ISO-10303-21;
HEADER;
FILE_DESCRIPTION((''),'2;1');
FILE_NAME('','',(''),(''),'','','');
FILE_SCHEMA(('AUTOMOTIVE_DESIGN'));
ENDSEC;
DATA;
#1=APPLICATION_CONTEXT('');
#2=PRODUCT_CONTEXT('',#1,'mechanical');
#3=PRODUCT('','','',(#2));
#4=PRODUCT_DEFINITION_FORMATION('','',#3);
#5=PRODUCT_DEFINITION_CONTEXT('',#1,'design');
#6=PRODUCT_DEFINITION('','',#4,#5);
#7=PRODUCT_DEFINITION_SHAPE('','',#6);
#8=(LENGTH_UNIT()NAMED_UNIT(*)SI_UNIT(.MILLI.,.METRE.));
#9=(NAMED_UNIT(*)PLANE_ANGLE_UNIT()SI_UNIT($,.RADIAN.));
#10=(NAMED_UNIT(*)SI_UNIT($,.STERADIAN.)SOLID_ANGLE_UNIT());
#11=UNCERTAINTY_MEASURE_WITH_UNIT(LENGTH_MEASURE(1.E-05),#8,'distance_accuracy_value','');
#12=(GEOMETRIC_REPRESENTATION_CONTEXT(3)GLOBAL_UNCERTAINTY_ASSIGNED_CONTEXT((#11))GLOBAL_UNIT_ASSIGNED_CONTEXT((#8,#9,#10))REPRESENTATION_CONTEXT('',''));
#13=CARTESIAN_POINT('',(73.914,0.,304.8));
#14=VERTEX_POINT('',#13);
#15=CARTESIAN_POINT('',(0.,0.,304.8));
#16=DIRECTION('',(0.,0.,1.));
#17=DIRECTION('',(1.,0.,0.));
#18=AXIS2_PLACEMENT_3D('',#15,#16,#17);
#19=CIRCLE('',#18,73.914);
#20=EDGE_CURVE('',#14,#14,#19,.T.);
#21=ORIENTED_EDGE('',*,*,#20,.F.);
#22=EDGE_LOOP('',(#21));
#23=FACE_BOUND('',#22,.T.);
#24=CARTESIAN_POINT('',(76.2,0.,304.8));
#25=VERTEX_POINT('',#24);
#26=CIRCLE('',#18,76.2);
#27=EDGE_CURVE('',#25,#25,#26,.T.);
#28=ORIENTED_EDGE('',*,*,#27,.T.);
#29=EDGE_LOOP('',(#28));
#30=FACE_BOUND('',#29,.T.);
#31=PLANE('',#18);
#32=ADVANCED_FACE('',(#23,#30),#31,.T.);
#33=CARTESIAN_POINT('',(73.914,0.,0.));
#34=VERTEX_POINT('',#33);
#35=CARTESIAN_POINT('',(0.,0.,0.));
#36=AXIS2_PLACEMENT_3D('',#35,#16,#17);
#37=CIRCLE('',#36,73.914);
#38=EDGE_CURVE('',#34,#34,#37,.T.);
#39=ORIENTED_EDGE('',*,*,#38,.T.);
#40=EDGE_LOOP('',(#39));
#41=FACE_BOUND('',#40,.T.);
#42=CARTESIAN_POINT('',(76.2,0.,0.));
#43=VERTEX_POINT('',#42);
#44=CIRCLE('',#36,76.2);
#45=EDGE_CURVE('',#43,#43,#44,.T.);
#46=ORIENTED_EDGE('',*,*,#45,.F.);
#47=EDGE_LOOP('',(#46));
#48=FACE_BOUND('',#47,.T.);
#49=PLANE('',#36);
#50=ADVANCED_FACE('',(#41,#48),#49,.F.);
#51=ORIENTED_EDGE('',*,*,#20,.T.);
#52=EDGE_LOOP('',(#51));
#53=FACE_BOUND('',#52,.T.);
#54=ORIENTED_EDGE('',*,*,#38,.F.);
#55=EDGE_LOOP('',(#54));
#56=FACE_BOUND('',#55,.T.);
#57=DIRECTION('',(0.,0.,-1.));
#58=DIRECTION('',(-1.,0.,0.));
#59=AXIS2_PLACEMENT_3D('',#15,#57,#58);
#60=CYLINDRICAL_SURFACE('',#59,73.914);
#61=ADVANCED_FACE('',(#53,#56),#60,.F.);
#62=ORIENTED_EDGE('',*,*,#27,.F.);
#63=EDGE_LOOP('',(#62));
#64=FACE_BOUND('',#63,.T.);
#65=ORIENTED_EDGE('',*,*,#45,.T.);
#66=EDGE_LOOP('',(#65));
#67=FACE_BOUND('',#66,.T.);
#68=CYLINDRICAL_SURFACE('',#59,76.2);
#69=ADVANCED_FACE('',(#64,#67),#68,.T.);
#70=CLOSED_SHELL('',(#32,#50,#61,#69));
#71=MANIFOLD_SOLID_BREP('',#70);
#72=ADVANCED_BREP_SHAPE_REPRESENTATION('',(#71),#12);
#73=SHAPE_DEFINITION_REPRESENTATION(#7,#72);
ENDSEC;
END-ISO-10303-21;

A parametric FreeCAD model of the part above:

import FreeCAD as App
import Part
import Sketcher
from FreeCAD import Vector
Q = App.Units.Quantity

doc = App.newDocument("Part")
params = doc.addObject("Spreadsheet::Sheet", "Params")
for row, (alias, value) in enumerate([
    ("sketch1_diameter", "6 in"),
    ("sketch1_diameter2", "5.82 in"),
    ("pad1_length", "12 in"),
], start=1):
    params.set(f"A{row}", alias)
    params.set(f"B{row}", "=" + value)
    params.setAlias(f"B{row}", alias)

body = doc.addObject("PartDesign::Body", "Body")

# Sketch on XY plane
sketch1 = body.newObject("Sketcher::SketchObject", "Sketch")
sketch1.AttachmentSupport = (doc.getObject("XY_Plane"), [""])
sketch1.MapMode = "FlatFace"
sketch1.addGeometry(Part.Circle(Vector(0, 0, 0), Vector(0, 0, 1), 76.2), False)
sketch1.addGeometry(Part.Circle(Vector(0, 0, 0), Vector(0, 0, 1), 73.914), False)
sketch1.addConstraint(Sketcher.Constraint("Coincident", 0, 3, -1, 1))
sketch1.addConstraint(Sketcher.Constraint("Coincident", 1, 3, -1, 1))
sketch1.addConstraint(Sketcher.Constraint("Diameter", 0, Q("6 in")))
sketch1.addConstraint(Sketcher.Constraint("Diameter", 1, Q("5.82 in")))
sketch1.setExpression("Constraints[2]", "Params.sketch1_diameter")
sketch1.setExpression("Constraints[3]", "Params.sketch1_diameter2")
pad1 = body.newObject("PartDesign::Pad", "Pad")
pad1.Profile = sketch1
pad1.setExpression("Length", "Params.pad1_length")

doc.recompute()
